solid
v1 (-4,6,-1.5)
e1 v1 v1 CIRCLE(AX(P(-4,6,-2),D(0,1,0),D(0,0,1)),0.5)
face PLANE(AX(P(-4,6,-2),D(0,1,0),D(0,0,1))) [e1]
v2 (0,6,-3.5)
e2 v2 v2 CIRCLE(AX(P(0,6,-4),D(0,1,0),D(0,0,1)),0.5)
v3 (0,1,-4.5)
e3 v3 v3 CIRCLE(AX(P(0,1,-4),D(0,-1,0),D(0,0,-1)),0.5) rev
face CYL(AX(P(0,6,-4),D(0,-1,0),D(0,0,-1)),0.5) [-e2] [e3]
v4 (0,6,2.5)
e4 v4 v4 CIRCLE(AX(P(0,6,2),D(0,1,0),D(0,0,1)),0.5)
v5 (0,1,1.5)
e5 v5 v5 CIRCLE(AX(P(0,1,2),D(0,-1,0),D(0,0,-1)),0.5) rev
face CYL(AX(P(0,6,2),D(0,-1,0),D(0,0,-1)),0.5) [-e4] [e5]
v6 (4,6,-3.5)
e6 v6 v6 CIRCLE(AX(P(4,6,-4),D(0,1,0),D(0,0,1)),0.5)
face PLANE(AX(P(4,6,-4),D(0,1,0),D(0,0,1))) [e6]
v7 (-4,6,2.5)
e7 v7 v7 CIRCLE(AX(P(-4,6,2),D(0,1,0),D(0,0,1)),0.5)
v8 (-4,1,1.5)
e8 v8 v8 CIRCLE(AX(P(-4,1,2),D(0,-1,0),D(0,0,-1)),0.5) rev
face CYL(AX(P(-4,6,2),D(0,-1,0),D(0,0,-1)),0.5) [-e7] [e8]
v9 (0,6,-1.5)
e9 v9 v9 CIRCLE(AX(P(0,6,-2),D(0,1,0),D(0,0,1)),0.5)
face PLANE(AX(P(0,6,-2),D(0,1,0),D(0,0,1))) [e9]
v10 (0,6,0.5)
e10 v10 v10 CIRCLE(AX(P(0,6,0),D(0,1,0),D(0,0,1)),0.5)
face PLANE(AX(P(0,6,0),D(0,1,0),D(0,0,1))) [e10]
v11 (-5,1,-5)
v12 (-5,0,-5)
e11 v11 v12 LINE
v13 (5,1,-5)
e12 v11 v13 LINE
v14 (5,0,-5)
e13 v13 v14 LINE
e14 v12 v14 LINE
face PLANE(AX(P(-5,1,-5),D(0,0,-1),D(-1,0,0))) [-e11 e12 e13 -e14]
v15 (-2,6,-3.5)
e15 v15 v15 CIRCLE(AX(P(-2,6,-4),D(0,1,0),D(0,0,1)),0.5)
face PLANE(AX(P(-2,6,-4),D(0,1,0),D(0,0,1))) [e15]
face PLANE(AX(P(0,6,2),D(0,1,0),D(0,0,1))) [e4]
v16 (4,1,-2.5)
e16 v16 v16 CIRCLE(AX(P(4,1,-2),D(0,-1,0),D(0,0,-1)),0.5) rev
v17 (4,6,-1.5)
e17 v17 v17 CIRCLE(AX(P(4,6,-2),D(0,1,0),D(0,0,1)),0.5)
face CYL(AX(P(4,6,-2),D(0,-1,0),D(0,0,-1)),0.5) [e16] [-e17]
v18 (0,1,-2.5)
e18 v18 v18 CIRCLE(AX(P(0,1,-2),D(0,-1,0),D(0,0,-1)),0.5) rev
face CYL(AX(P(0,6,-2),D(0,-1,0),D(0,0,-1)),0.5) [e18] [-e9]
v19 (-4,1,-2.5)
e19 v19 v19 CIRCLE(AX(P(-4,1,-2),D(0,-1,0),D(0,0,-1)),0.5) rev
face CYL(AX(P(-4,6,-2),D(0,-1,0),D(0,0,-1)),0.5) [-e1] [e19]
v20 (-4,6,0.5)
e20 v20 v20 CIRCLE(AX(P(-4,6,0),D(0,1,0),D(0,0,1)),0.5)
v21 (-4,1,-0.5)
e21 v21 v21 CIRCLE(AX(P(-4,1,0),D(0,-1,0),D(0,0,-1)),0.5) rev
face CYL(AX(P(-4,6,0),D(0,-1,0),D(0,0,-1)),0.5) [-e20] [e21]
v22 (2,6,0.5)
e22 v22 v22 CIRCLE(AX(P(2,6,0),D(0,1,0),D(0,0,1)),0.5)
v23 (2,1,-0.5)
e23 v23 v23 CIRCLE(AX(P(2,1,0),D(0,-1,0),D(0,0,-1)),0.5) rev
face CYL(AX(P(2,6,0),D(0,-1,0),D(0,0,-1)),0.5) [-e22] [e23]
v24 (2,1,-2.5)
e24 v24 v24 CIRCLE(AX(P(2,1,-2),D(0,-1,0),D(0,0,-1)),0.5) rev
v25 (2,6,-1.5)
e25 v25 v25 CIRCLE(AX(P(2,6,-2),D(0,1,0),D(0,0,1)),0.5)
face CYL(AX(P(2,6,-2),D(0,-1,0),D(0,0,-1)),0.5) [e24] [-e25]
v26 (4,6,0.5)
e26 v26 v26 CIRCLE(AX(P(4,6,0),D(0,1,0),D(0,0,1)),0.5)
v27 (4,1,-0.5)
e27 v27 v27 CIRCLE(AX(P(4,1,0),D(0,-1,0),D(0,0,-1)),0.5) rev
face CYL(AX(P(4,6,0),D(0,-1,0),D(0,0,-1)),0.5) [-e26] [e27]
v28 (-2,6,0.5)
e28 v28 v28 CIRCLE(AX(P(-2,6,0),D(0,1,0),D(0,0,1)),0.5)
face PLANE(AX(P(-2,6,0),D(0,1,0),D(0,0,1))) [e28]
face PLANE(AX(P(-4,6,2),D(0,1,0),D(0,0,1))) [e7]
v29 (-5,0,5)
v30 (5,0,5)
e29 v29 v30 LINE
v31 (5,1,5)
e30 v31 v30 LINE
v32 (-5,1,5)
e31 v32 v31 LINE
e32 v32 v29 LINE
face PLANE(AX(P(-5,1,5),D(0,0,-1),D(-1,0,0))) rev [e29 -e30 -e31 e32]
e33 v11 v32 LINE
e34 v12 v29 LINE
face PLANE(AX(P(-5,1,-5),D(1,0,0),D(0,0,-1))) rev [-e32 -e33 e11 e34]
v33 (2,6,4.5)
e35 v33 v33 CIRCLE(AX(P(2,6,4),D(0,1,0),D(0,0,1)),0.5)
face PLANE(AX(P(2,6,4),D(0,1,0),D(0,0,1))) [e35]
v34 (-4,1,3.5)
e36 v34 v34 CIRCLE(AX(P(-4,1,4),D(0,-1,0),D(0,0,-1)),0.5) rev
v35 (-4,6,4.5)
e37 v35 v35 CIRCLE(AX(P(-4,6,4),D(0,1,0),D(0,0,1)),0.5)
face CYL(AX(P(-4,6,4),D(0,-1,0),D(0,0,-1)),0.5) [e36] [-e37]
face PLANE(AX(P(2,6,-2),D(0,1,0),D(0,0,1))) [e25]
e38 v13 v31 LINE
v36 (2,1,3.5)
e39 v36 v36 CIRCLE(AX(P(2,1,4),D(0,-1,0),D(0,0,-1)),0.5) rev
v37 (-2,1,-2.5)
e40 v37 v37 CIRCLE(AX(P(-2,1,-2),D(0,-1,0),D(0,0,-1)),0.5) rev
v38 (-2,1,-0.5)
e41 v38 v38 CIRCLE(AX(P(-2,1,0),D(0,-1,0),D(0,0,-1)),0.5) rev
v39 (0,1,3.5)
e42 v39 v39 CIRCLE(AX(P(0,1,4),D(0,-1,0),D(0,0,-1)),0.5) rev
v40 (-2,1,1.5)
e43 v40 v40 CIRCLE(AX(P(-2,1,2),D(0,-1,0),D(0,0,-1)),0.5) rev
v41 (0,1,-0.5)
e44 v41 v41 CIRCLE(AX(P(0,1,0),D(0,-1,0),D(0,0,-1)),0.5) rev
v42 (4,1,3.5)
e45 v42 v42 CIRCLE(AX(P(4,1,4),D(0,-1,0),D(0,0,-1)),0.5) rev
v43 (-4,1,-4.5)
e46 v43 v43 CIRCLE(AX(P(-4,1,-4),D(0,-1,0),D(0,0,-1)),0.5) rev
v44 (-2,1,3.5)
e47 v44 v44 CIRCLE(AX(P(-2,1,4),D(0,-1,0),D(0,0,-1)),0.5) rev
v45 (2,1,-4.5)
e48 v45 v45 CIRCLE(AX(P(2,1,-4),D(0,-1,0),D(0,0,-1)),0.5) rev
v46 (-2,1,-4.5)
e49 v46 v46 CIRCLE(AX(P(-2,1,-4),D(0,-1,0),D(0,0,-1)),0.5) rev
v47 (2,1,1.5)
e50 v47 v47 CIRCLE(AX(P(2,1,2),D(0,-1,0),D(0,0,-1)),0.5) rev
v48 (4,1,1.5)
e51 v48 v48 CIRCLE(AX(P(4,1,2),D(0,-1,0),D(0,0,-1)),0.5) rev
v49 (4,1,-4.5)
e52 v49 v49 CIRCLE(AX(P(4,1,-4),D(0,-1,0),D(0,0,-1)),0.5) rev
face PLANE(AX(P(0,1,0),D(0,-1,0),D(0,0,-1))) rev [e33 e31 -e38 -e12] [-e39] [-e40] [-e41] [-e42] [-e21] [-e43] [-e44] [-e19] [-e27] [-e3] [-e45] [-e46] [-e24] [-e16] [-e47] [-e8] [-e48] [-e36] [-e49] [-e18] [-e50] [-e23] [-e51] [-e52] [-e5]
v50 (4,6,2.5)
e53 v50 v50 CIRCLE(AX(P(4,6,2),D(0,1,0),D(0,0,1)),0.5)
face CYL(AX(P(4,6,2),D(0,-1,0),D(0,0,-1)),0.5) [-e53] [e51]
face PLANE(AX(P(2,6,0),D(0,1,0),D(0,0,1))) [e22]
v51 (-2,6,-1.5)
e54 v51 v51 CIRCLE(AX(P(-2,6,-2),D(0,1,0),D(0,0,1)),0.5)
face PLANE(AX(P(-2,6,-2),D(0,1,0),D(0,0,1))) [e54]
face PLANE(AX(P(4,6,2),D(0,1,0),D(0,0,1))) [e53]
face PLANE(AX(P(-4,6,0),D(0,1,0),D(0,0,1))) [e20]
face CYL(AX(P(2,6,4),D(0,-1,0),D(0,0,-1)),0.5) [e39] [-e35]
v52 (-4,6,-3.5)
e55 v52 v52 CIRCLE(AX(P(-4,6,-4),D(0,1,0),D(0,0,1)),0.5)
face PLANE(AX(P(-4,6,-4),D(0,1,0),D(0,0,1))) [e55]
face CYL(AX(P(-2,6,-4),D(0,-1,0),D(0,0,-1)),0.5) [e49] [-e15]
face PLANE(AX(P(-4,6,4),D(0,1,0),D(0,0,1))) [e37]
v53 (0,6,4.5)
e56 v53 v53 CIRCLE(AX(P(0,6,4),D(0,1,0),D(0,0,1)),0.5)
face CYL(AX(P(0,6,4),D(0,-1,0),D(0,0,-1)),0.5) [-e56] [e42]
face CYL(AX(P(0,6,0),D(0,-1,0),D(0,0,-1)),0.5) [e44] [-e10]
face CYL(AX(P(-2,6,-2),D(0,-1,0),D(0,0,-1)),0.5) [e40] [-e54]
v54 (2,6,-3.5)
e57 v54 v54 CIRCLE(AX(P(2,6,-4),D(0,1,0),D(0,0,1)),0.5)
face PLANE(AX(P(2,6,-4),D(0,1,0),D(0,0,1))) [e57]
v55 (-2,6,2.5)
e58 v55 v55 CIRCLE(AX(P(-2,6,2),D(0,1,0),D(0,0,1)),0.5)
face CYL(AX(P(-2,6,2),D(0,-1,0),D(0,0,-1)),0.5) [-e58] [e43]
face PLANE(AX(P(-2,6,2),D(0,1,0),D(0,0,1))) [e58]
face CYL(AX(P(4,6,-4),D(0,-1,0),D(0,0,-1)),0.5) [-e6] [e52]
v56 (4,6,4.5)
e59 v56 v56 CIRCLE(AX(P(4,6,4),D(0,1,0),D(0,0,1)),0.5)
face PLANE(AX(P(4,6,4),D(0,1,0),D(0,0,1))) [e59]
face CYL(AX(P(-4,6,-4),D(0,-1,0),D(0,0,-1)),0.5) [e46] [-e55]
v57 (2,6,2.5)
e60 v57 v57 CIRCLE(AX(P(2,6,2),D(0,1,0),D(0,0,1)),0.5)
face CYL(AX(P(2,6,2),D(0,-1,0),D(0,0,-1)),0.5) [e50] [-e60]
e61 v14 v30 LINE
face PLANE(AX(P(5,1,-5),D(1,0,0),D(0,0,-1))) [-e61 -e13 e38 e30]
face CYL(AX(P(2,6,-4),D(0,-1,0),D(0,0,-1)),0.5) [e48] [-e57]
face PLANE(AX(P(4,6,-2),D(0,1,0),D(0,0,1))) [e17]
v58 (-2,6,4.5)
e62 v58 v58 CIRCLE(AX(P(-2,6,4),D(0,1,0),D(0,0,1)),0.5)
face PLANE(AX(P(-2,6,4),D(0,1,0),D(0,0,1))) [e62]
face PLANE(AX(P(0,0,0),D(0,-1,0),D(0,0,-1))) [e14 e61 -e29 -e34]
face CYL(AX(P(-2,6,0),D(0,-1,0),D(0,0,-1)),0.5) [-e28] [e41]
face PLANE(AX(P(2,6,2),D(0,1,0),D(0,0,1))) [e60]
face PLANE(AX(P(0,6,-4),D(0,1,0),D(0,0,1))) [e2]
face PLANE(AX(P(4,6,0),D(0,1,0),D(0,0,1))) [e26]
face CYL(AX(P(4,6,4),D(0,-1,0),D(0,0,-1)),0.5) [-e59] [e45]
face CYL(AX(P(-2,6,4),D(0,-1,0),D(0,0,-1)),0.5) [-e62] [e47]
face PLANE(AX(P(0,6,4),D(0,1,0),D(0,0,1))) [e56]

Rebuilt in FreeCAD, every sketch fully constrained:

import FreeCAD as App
import Part
import Sketcher

V = App.Vector


def add_polygon(sketch, points):
    """Adds a closed chain of lines whose ends are joined by coincident constraints."""
    first, n = sketch.GeometryCount, len(points)
    for a, b in zip(points, points[1:] + points[:1]):
        sketch.addGeometry(Part.LineSegment(App.Vector(*a, 0), App.Vector(*b, 0)), False)
    for i in range(n):
        sketch.addConstraint(Sketcher.Constraint("Coincident", first + i, 2, first + (i + 1) % n, 1))

doc = App.newDocument("Part")
body = doc.addObject("PartDesign::Body", "Body")

# Sketch on XZ plane
sketch1 = body.newObject("Sketcher::SketchObject", "Sketch")
sketch1.AttachmentSupport = (doc.getObject("XZ_Plane"), [""])
sketch1.MapMode = "FlatFace"
add_polygon(sketch1, [(-5, -5), (-5, 5), (5, 5), (5, -5)])  # lines 0-3
sketch1.addConstraint(Sketcher.Constraint("Vertical", 0))
sketch1.addConstraint(Sketcher.Constraint("Horizontal", 1))
sketch1.addConstraint(Sketcher.Constraint("Vertical", 2))
sketch1.addConstraint(Sketcher.Constraint("Horizontal", 3))
sketch1.addConstraint(Sketcher.Constraint("Symmetric", 0, 2, 2, 2, -1, 1))
sketch1.addConstraint(Sketcher.Constraint("Equal", 3, 0))
sketch1.addConstraint(Sketcher.Constraint("DistanceX", 1, 1, 1, 2, 10.0))
pad1 = body.newObject("PartDesign::Pad", "Pad")
pad1.Profile = sketch1
pad1.Length = 1
pad1.Reversed = True

# Sketch on XZ plane
sketch2 = body.newObject("Sketcher::SketchObject", "Sketch001")
sketch2.AttachmentSupport = (doc.getObject("XZ_Plane"), [""])
sketch2.MapMode = "FlatFace"
sketch2.AttachmentOffset = App.Placement(V(0, 0, -1), App.Rotation())
sketch2.addGeometry(Part.Circle(V(-4, -4, 0), V(0, 0, 1), 0.5), False)
sketch2.addConstraint(Sketcher.Constraint("Diameter", 0, 1.0))
sketch2.addConstraint(Sketcher.Constraint("DistanceX", 0, 3, -1, 1, 4.0))
sketch2.addConstraint(Sketcher.Constraint("DistanceY", 0, 3, -1, 1, 4.0))
pad2 = body.newObject("PartDesign::Pad", "Pad001")
pad2.Profile = sketch2
pad2.Length = 5
pad2.Reversed = True
doc.recompute()

linearpattern = body.newObject("PartDesign::LinearPattern", "LinearPattern")
linearpattern.Originals = [pad2]
linearpattern.Direction = (doc.getObject("X_Axis"), [""])
linearpattern.Mode = "offset"
linearpattern.Offset = 2
linearpattern.Occurrences = 5
body.Tip = linearpattern
doc.recompute()

linearpattern2 = body.newObject("PartDesign::LinearPattern", "LinearPattern001")
linearpattern2.Originals = [pad2]
linearpattern2.Direction = (doc.getObject("Z_Axis"), [""])
linearpattern2.Mode = "offset"
linearpattern2.Offset = 2
linearpattern2.Occurrences = 5
body.Tip = linearpattern2

# Sketch on XZ plane
sketch3 = body.newObject("Sketcher::SketchObject", "Sketch002")
sketch3.AttachmentSupport = (doc.getObject("XZ_Plane"), [""])
sketch3.MapMode = "FlatFace"
sketch3.AttachmentOffset = App.Placement(V(0, 0, -1), App.Rotation())
sketch3.addGeometry(Part.Circle(V(-2, -2, 0), V(0, 0, 1), 0.5), False)
sketch3.addConstraint(Sketcher.Constraint("Diameter", 0, 1.0))
sketch3.addConstraint(Sketcher.Constraint("DistanceX", 0, 3, -1, 1, 2.0))
sketch3.addConstraint(Sketcher.Constraint("DistanceY", 0, 3, -1, 1, 2.0))
pad3 = body.newObject("PartDesign::Pad", "Pad002")
pad3.Profile = sketch3
pad3.Length = 5
pad3.Reversed = True

# Sketch on XZ plane
sketch4 = body.newObject("Sketcher::SketchObject", "Sketch003")
sketch4.AttachmentSupport = (doc.getObject("XZ_Plane"), [""])
sketch4.MapMode = "FlatFace"
sketch4.AttachmentOffset = App.Placement(V(0, 0, -1), App.Rotation())
sketch4.addGeometry(Part.Circle(V(-2, 0, 0), V(0, 0, 1), 0.5), False)
sketch4.addConstraint(Sketcher.Constraint("PointOnObject", 0, 3, -1))
sketch4.addConstraint(Sketcher.Constraint("Diameter", 0, 1.0))
sketch4.addConstraint(Sketcher.Constraint("DistanceX", 0, 3, -1, 1, 2.0))
pad4 = body.newObject("PartDesign::Pad", "Pad003")
pad4.Profile = sketch4
pad4.Length = 5
pad4.Reversed = True

# Sketch on XZ plane
sketch5 = body.newObject("Sketcher::SketchObject", "Sketch004")
sketch5.AttachmentSupport = (doc.getObject("XZ_Plane"), [""])
sketch5.MapMode = "FlatFace"
sketch5.AttachmentOffset = App.Placement(V(0, 0, -1), App.Rotation())
sketch5.addGeometry(Part.Circle(V(-2, 2, 0), V(0, 0, 1), 0.5), False)
sketch5.addConstraint(Sketcher.Constraint("Diameter", 0, 1.0))
sketch5.addConstraint(Sketcher.Constraint("DistanceX", 0, 3, -1, 1, 2.0))
sketch5.addConstraint(Sketcher.Constraint("DistanceY", -1, 1, 0, 3, 2.0))
pad5 = body.newObject("PartDesign::Pad", "Pad004")
pad5.Profile = sketch5
pad5.Length = 5
pad5.Reversed = True

# Sketch on XZ plane
sketch6 = body.newObject("Sketcher::SketchObject", "Sketch005")
sketch6.AttachmentSupport = (doc.getObject("XZ_Plane"), [""])
sketch6.MapMode = "FlatFace"
sketch6.AttachmentOffset = App.Placement(V(0, 0, -1), App.Rotation())
sketch6.addGeometry(Part.Circle(V(-2, 4, 0), V(0, 0, 1), 0.5), False)
sketch6.addConstraint(Sketcher.Constraint("Diameter", 0, 1.0))
sketch6.addConstraint(Sketcher.Constraint("DistanceX", 0, 3, -1, 1, 2.0))
sketch6.addConstraint(Sketcher.Constraint("DistanceY", -1, 1, 0, 3, 4.0))
pad6 = body.newObject("PartDesign::Pad", "Pad005")
pad6.Profile = sketch6
pad6.Length = 5
pad6.Reversed = True

# Sketch on XZ plane
sketch7 = body.newObject("Sketcher::SketchObject", "Sketch006")
sketch7.AttachmentSupport = (doc.getObject("XZ_Plane"), [""])
sketch7.MapMode = "FlatFace"
sketch7.AttachmentOffset = App.Placement(V(0, 0, -1), App.Rotation())
sketch7.addGeometry(Part.Circle(V(0, -2, 0), V(0, 0, 1), 0.5), False)
sketch7.addConstraint(Sketcher.Constraint("PointOnObject", 0, 3, -2))
sketch7.addConstraint(Sketcher.Constraint("Diameter", 0, 1.0))
sketch7.addConstraint(Sketcher.Constraint("DistanceY", 0, 3, -1, 1, 2.0))
pad7 = body.newObject("PartDesign::Pad", "Pad006")
pad7.Profile = sketch7
pad7.Length = 5
pad7.Reversed = True

# Sketch on XZ plane
sketch8 = body.newObject("Sketcher::SketchObject", "Sketch007")
sketch8.AttachmentSupport = (doc.getObject("XZ_Plane"), [""])
sketch8.MapMode = "FlatFace"
sketch8.AttachmentOffset = App.Placement(V(0, 0, -1), App.Rotation())
sketch8.addGeometry(Part.Circle(V(0, 0, 0), V(0, 0, 1), 0.5), False)
sketch8.addConstraint(Sketcher.Constraint("Coincident", 0, 3, -1, 1))
sketch8.addConstraint(Sketcher.Constraint("Diameter", 0, 1.0))
pad8 = body.newObject("PartDesign::Pad", "Pad007")
pad8.Profile = sketch8
pad8.Length = 5
pad8.Reversed = True

# Sketch on XZ plane
sketch9 = body.newObject("Sketcher::SketchObject", "Sketch008")
sketch9.AttachmentSupport = (doc.getObject("XZ_Plane"), [""])
sketch9.MapMode = "FlatFace"
sketch9.AttachmentOffset = App.Placement(V(0, 0, -1), App.Rotation())
sketch9.addGeometry(Part.Circle(V(0, 2, 0), V(0, 0, 1), 0.5), False)
sketch9.addConstraint(Sketcher.Constraint("PointOnObject", 0, 3, -2))
sketch9.addConstraint(Sketcher.Constraint("Diameter", 0, 1.0))
sketch9.addConstraint(Sketcher.Constraint("DistanceY", -1, 1, 0, 3, 2.0))
pad9 = body.newObject("PartDesign::Pad", "Pad008")
pad9.Profile = sketch9
pad9.Length = 5
pad9.Reversed = True

# Sketch on XZ plane
sketch10 = body.newObject("Sketcher::SketchObject", "Sketch009")
sketch10.AttachmentSupport = (doc.getObject("XZ_Plane"), [""])
sketch10.MapMode = "FlatFace"
sketch10.AttachmentOffset = App.Placement(V(0, 0, -1), App.Rotation())
sketch10.addGeometry(Part.Circle(V(0, 4, 0), V(0, 0, 1), 0.5), False)
sketch10.addConstraint(Sketcher.Constraint("PointOnObject", 0, 3, -2))
sketch10.addConstraint(Sketcher.Constraint("Diameter", 0, 1.0))
sketch10.addConstraint(Sketcher.Constraint("DistanceY", -1, 1, 0, 3, 4.0))
pad10 = body.newObject("PartDesign::Pad", "Pad009")
pad10.Profile = sketch10
pad10.Length = 5
pad10.Reversed = True

# Sketch on XZ plane
sketch11 = body.newObject("Sketcher::SketchObject", "Sketch010")
sketch11.AttachmentSupport = (doc.getObject("XZ_Plane"), [""])
sketch11.MapMode = "FlatFace"
sketch11.AttachmentOffset = App.Placement(V(0, 0, -1), App.Rotation())
sketch11.addGeometry(Part.Circle(V(2, -2, 0), V(0, 0, 1), 0.5), False)
sketch11.addConstraint(Sketcher.Constraint("Diameter", 0, 1.0))
sketch11.addConstraint(Sketcher.Constraint("DistanceX", -1, 1, 0, 3, 2.0))
sketch11.addConstraint(Sketcher.Constraint("DistanceY", 0, 3, -1, 1, 2.0))
pad11 = body.newObject("PartDesign::Pad", "Pad010")
pad11.Profile = sketch11
pad11.Length = 5
pad11.Reversed = True

# Sketch on XZ plane
sketch12 = body.newObject("Sketcher::SketchObject", "Sketch011")
sketch12.AttachmentSupport = (doc.getObject("XZ_Plane"), [""])
sketch12.MapMode = "FlatFace"
sketch12.AttachmentOffset = App.Placement(V(0, 0, -1), App.Rotation())
sketch12.addGeometry(Part.Circle(V(2, 0, 0), V(0, 0, 1), 0.5), False)
sketch12.addConstraint(Sketcher.Constraint("PointOnObject", 0, 3, -1))
sketch12.addConstraint(Sketcher.Constraint("Diameter", 0, 1.0))
sketch12.addConstraint(Sketcher.Constraint("DistanceX", -1, 1, 0, 3, 2.0))
pad12 = body.newObject("PartDesign::Pad", "Pad011")
pad12.Profile = sketch12
pad12.Length = 5
pad12.Reversed = True

# Sketch on XZ plane
sketch13 = body.newObject("Sketcher::SketchObject", "Sketch012")
sketch13.AttachmentSupport = (doc.getObject("XZ_Plane"), [""])
sketch13.MapMode = "FlatFace"
sketch13.AttachmentOffset = App.Placement(V(0, 0, -1), App.Rotation())
sketch13.addGeometry(Part.Circle(V(2, 2, 0), V(0, 0, 1), 0.5), False)
sketch13.addConstraint(Sketcher.Constraint("Diameter", 0, 1.0))
sketch13.addConstraint(Sketcher.Constraint("DistanceX", -1, 1, 0, 3, 2.0))
sketch13.addConstraint(Sketcher.Constraint("DistanceY", -1, 1, 0, 3, 2.0))
pad13 = body.newObject("PartDesign::Pad", "Pad012")
pad13.Profile = sketch13
pad13.Length = 5
pad13.Reversed = True

# Sketch on XZ plane
sketch14 = body.newObject("Sketcher::SketchObject", "Sketch013")
sketch14.AttachmentSupport = (doc.getObject("XZ_Plane"), [""])
sketch14.MapMode = "FlatFace"
sketch14.AttachmentOffset = App.Placement(V(0, 0, -1), App.Rotation())
sketch14.addGeometry(Part.Circle(V(2, 4, 0), V(0, 0, 1), 0.5), False)
sketch14.addConstraint(Sketcher.Constraint("Diameter", 0, 1.0))
sketch14.addConstraint(Sketcher.Constraint("DistanceX", -1, 1, 0, 3, 2.0))
sketch14.addConstraint(Sketcher.Constraint("DistanceY", -1, 1, 0, 3, 4.0))
pad14 = body.newObject("PartDesign::Pad", "Pad013")
pad14.Profile = sketch14
pad14.Length = 5
pad14.Reversed = True

# Sketch on XZ plane
sketch15 = body.newObject("Sketcher::SketchObject", "Sketch014")
sketch15.AttachmentSupport = (doc.getObject("XZ_Plane"), [""])
sketch15.MapMode = "FlatFace"
sketch15.AttachmentOffset = App.Placement(V(0, 0, -1), App.Rotation())
sketch15.addGeometry(Part.Circle(V(4, -2, 0), V(0, 0, 1), 0.5), False)
sketch15.addConstraint(Sketcher.Constraint("Diameter", 0, 1.0))
sketch15.addConstraint(Sketcher.Constraint("DistanceX", -1, 1, 0, 3, 4.0))
sketch15.addConstraint(Sketcher.Constraint("DistanceY", 0, 3, -1, 1, 2.0))
pad15 = body.newObject("PartDesign::Pad", "Pad014")
pad15.Profile = sketch15
pad15.Length = 5
pad15.Reversed = True

# Sketch on XZ plane
sketch16 = body.newObject("Sketcher::SketchObject", "Sketch015")
sketch16.AttachmentSupport = (doc.getObject("XZ_Plane"), [""])
sketch16.MapMode = "FlatFace"
sketch16.AttachmentOffset = App.Placement(V(0, 0, -1), App.Rotation())
sketch16.addGeometry(Part.Circle(V(4, 0, 0), V(0, 0, 1), 0.5), False)
sketch16.addConstraint(Sketcher.Constraint("PointOnObject", 0, 3, -1))
sketch16.addConstraint(Sketcher.Constraint("Diameter", 0, 1.0))
sketch16.addConstraint(Sketcher.Constraint("DistanceX", -1, 1, 0, 3, 4.0))
pad16 = body.newObject("PartDesign::Pad", "Pad015")
pad16.Profile = sketch16
pad16.Length = 5
pad16.Reversed = True

# Sketch on XZ plane
sketch17 = body.newObject("Sketcher::SketchObject", "Sketch016")
sketch17.AttachmentSupport = (doc.getObject("XZ_Plane"), [""])
sketch17.MapMode = "FlatFace"
sketch17.AttachmentOffset = App.Placement(V(0, 0, -1), App.Rotation())
sketch17.addGeometry(Part.Circle(V(4, 2, 0), V(0, 0, 1), 0.5), False)
sketch17.addConstraint(Sketcher.Constraint("Diameter", 0, 1.0))
sketch17.addConstraint(Sketcher.Constraint("DistanceX", -1, 1, 0, 3, 4.0))
sketch17.addConstraint(Sketcher.Constraint("DistanceY", -1, 1, 0, 3, 2.0))
pad17 = body.newObject("PartDesign::Pad", "Pad016")
pad17.Profile = sketch17
pad17.Length = 5
pad17.Reversed = True

# Sketch on XZ plane
sketch18 = body.newObject("Sketcher::SketchObject", "Sketch017")
sketch18.AttachmentSupport = (doc.getObject("XZ_Plane"), [""])
sketch18.MapMode = "FlatFace"
sketch18.AttachmentOffset = App.Placement(V(0, 0, -1), App.Rotation())
sketch18.addGeometry(Part.Circle(V(4, 4, 0), V(0, 0, 1), 0.5), False)
sketch18.addConstraint(Sketcher.Constraint("Diameter", 0, 1.0))
sketch18.addConstraint(Sketcher.Constraint("DistanceX", -1, 1, 0, 3, 4.0))
sketch18.addConstraint(Sketcher.Constraint("DistanceY", -1, 1, 0, 3, 4.0))
pad18 = body.newObject("PartDesign::Pad", "Pad017")
pad18.Profile = sketch18
pad18.Length = 5
pad18.Reversed = True

doc.recompute()
